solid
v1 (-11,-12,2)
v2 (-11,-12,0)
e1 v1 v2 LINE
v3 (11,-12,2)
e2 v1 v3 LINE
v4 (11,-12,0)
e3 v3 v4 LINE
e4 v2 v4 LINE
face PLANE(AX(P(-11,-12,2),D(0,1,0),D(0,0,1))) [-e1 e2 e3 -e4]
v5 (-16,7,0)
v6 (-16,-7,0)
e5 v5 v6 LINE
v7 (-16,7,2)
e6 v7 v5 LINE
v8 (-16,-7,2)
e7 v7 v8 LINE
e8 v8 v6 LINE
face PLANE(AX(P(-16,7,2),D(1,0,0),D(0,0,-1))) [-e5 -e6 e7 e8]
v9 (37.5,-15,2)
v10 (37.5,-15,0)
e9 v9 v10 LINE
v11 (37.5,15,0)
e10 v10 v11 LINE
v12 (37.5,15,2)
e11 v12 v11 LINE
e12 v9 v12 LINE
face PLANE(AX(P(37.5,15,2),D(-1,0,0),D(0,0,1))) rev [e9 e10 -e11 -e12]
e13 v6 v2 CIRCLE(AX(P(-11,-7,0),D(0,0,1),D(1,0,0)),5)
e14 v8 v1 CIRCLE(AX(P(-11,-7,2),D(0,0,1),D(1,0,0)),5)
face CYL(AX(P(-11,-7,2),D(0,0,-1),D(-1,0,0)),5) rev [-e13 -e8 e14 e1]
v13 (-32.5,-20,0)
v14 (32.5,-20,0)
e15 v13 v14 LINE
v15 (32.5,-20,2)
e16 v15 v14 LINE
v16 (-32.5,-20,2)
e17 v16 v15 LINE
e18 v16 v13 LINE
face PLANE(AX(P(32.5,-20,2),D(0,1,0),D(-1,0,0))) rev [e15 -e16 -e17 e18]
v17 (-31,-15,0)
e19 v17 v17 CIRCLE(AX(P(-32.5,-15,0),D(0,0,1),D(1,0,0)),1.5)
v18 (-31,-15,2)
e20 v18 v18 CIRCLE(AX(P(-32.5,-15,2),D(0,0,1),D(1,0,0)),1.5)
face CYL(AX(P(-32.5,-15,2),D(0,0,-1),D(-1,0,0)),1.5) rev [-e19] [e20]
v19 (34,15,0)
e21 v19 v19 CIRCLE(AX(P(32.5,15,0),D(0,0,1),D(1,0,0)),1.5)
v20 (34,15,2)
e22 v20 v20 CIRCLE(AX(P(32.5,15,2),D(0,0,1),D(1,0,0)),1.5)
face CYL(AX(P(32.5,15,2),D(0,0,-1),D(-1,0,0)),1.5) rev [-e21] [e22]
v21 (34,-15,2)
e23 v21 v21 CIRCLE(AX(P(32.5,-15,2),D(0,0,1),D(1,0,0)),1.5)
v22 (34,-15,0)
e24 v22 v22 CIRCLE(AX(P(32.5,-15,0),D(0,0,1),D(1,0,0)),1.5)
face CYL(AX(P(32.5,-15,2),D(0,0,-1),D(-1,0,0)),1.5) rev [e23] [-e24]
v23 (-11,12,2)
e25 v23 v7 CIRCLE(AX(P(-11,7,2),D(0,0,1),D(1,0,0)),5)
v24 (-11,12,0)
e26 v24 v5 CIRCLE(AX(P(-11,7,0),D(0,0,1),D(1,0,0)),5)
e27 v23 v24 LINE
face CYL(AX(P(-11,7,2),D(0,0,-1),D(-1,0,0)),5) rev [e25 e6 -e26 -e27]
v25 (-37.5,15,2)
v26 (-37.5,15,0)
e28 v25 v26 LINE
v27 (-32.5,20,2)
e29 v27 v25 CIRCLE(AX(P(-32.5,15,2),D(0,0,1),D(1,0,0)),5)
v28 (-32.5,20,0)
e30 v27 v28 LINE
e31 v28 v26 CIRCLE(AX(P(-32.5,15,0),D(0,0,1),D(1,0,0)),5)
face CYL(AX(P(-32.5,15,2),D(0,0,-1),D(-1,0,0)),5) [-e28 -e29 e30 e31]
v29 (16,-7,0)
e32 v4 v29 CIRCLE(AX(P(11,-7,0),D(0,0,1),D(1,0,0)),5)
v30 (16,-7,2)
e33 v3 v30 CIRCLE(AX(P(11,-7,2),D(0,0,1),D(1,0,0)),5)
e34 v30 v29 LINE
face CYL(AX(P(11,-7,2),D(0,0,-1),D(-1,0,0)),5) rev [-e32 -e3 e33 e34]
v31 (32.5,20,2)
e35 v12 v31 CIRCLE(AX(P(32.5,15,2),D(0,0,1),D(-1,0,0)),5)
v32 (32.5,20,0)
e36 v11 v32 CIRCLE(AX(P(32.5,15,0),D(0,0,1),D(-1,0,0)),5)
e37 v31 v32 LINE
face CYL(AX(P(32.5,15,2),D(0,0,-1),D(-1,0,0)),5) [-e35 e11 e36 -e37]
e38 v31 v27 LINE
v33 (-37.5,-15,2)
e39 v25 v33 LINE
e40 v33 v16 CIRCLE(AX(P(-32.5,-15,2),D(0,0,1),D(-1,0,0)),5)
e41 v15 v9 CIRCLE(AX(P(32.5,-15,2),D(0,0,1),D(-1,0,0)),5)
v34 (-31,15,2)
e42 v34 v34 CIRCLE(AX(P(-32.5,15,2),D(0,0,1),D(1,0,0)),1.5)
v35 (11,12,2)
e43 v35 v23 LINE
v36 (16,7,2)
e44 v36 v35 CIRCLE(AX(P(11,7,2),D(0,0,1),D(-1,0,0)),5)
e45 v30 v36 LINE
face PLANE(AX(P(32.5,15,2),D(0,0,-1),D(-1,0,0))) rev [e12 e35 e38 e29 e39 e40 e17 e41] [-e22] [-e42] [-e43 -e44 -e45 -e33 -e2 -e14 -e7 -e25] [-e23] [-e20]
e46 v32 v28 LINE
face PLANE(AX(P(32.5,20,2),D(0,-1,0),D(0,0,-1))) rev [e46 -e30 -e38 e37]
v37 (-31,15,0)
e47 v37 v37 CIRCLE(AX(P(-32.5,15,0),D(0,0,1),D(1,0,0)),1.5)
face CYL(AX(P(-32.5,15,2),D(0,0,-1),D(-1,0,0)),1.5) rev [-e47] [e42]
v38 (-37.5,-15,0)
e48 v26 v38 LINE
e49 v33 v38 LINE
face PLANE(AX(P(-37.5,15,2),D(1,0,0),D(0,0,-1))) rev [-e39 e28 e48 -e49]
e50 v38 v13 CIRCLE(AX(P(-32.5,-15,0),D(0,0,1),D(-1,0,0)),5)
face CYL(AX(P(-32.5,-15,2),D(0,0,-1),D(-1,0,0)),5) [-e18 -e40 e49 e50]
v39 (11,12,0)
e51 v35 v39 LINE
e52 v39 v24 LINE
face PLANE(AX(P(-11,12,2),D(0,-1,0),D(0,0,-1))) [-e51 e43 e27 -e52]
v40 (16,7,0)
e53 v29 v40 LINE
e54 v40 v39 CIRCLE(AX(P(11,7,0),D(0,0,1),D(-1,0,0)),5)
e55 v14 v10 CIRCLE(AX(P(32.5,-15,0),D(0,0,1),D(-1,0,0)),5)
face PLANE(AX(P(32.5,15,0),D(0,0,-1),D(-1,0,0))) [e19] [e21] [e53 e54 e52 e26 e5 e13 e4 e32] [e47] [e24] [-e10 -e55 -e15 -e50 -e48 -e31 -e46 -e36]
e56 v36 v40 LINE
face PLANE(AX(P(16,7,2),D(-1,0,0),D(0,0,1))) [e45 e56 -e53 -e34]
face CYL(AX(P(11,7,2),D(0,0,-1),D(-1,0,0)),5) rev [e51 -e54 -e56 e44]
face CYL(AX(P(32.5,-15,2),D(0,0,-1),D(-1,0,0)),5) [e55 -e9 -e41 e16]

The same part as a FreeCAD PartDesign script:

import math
import FreeCAD as App
import Part
import Sketcher
Q = App.Units.Quantity

doc = App.newDocument("Part")
body = doc.addObject("PartDesign::Body", "Body")

# Sketch on XY plane
sketch1 = body.newObject("Sketcher::SketchObject", "Sketch")
sketch1.AttachmentSupport = (doc.getObject("XY_Plane"), [""])
sketch1.MapMode = "FlatFace"
sketch1.addGeometry(Part.LineSegment(App.Vector(32.5, 20, 0), App.Vector(-32.5, 20, 0)), False)
sketch1.addGeometry(Part.ArcOfCircle(Part.Circle(App.Vector(-32.5, 15, 0), App.Vector(0, 0, 1), 5), math.radians(90), math.radians(180)), False)
sketch1.addGeometry(Part.LineSegment(App.Vector(-37.5, 15, 0), App.Vector(-37.5, -15, 0)), False)
sketch1.addGeometry(Part.ArcOfCircle(Part.Circle(App.Vector(-32.5, -15, 0), App.Vector(0, 0, 1), 5), math.radians(180), math.radians(270)), False)
sketch1.addGeometry(Part.LineSegment(App.Vector(-32.5, -20, 0), App.Vector(32.5, -20, 0)), False)
sketch1.addGeometry(Part.ArcOfCircle(Part.Circle(App.Vector(32.5, -15, 0), App.Vector(0, 0, 1), 5), math.radians(-90), math.radians(0)), False)
sketch1.addGeometry(Part.LineSegment(App.Vector(37.5, -15, 0), App.Vector(37.5, 15, 0)), False)
sketch1.addGeometry(Part.ArcOfCircle(Part.Circle(App.Vector(32.5, 15, 0), App.Vector(0, 0, 1), 5), math.radians(0), math.radians(90)), False)
sketch1.addGeometry(Part.Circle(App.Vector(-32.5, -15, 0), App.Vector(0, 0, 1), 1.5), False)
sketch1.addGeometry(Part.Circle(App.Vector(32.5, -15, 0), App.Vector(0, 0, 1), 1.5), False)
sketch1.addGeometry(Part.Circle(App.Vector(-32.5, 15, 0), App.Vector(0, 0, 1), 1.5), False)
sketch1.addGeometry(Part.ArcOfCircle(Part.Circle(App.Vector(-11, 7, 0), App.Vector(0, 0, 1), 5), math.radians(90), math.radians(180)), False)
sketch1.addGeometry(Part.LineSegment(App.Vector(-11, 12, 0), App.Vector(11, 12, 0)), False)
sketch1.addGeometry(Part.ArcOfCircle(Part.Circle(App.Vector(11, 7, 0), App.Vector(0, 0, 1), 5), math.radians(0), math.radians(90)), False)
sketch1.addGeometry(Part.LineSegment(App.Vector(16, 7, 0), App.Vector(16, -7, 0)), False)
sketch1.addGeometry(Part.ArcOfCircle(Part.Circle(App.Vector(11, -7, 0), App.Vector(0, 0, 1), 5), math.radians(-90), math.radians(0)), False)
sketch1.addGeometry(Part.LineSegment(App.Vector(11, -12, 0), App.Vector(-11, -12, 0)), False)
sketch1.addGeometry(Part.ArcOfCircle(Part.Circle(App.Vector(-11, -7, 0), App.Vector(0, 0, 1), 5), math.radians(180), math.radians(270)), False)
sketch1.addGeometry(Part.LineSegment(App.Vector(-16, -7, 0), App.Vector(-16, 7, 0)), False)
sketch1.addGeometry(Part.Circle(App.Vector(32.5, 15, 0), App.Vector(0, 0, 1), 1.5), False)
sketch1.addConstraint(Sketcher.Constraint("Tangent", 0, 2, 1, 1))
sketch1.addConstraint(Sketcher.Constraint("Tangent", 1, 2, 2, 1))
sketch1.addConstraint(Sketcher.Constraint("Tangent", 2, 2, 3, 1))
sketch1.addConstraint(Sketcher.Constraint("Tangent", 3, 2, 4, 1))
sketch1.addConstraint(Sketcher.Constraint("Tangent", 4, 2, 5, 1))
sketch1.addConstraint(Sketcher.Constraint("Tangent", 5, 2, 6, 1))
sketch1.addConstraint(Sketcher.Constraint("Tangent", 6, 2, 7, 1))
sketch1.addConstraint(Sketcher.Constraint("Tangent", 7, 2, 0, 1))
sketch1.addConstraint(Sketcher.Constraint("Tangent", 11, 1, 12, 1))
sketch1.addConstraint(Sketcher.Constraint("Tangent", 12, 2, 13, 2))
sketch1.addConstraint(Sketcher.Constraint("Tangent", 13, 1, 14, 1))
sketch1.addConstraint(Sketcher.Constraint("Tangent", 14, 2, 15, 2))
sketch1.addConstraint(Sketcher.Constraint("Tangent", 15, 1, 16, 1))
sketch1.addConstraint(Sketcher.Constraint("Tangent", 16, 2, 17, 2))
sketch1.addConstraint(Sketcher.Constraint("Tangent", 17, 1, 18, 1))
sketch1.addConstraint(Sketcher.Constraint("Tangent", 18, 2, 11, 2))
sketch1.addConstraint(Sketcher.Constraint("Horizontal", 0))
sketch1.addConstraint(Sketcher.Constraint("Vertical", 2))
sketch1.addConstraint(Sketcher.Constraint("Horizontal", 4))
sketch1.addConstraint(Sketcher.Constraint("Vertical", 6))
sketch1.addConstraint(Sketcher.Constraint("Horizontal", 12))
sketch1.addConstraint(Sketcher.Constraint("Vertical", 14))
sketch1.addConstraint(Sketcher.Constraint("Horizontal", 16))
sketch1.addConstraint(Sketcher.Constraint("Vertical", 18))
sketch1.addConstraint(Sketcher.Constraint("Coincident", 8, 3, 3, 3))
sketch1.addConstraint(Sketcher.Constraint("Coincident", 9, 3, 5, 3))
sketch1.addConstraint(Sketcher.Constraint("Coincident", 10, 3, 1, 3))
sketch1.addConstraint(Sketcher.Constraint("Coincident", 19, 3, 7, 3))
sketch1.addConstraint(Sketcher.Constraint("Equal", 1, 3))
sketch1.addConstraint(Sketcher.Constraint("Equal", 3, 5))
sketch1.addConstraint(Sketcher.Constraint("Equal", 5, 7))
sketch1.addConstraint(Sketcher.Constraint("Equal", 8, 9))
sketch1.addConstraint(Sketcher.Constraint("Equal", 9, 10))
sketch1.addConstraint(Sketcher.Constraint("Equal", 7, 11))
sketch1.addConstraint(Sketcher.Constraint("Equal", 11, 13))
sketch1.addConstraint(Sketcher.Constraint("Equal", 13, 15))
sketch1.addConstraint(Sketcher.Constraint("Equal", 15, 17))
sketch1.addConstraint(Sketcher.Constraint("Equal", 10, 19))
sketch1.addConstraint(Sketcher.Constraint("Symmetric", 1, 3, 5, 3, -1, 1))
sketch1.addConstraint(Sketcher.Constraint("Symmetric", 11, 3, 15, 3, -1, 1))
sketch1.addConstraint(Sketcher.Constraint("Diameter", 8, Q("3 mm")))
sketch1.addConstraint(Sketcher.Constraint("Radius", 1, Q("5 mm")))
sketch1.addConstraint(Sketcher.Constraint("DistanceX", 0, 2, 0, 1, Q("65 mm")))
sketch1.addConstraint(Sketcher.Constraint("DistanceX", 12, 1, 12, 2, Q("22 mm")))
sketch1.addConstraint(Sketcher.Constraint("DistanceY", 2, 2, 2, 1, Q("30 mm")))
sketch1.addConstraint(Sketcher.Constraint("DistanceY", 14, 2, 14, 1, Q("14 mm")))
pad1 = body.newObject("PartDesign::Pad", "Pad")
pad1.Profile = sketch1
pad1.Length = 2

doc.recompute()
